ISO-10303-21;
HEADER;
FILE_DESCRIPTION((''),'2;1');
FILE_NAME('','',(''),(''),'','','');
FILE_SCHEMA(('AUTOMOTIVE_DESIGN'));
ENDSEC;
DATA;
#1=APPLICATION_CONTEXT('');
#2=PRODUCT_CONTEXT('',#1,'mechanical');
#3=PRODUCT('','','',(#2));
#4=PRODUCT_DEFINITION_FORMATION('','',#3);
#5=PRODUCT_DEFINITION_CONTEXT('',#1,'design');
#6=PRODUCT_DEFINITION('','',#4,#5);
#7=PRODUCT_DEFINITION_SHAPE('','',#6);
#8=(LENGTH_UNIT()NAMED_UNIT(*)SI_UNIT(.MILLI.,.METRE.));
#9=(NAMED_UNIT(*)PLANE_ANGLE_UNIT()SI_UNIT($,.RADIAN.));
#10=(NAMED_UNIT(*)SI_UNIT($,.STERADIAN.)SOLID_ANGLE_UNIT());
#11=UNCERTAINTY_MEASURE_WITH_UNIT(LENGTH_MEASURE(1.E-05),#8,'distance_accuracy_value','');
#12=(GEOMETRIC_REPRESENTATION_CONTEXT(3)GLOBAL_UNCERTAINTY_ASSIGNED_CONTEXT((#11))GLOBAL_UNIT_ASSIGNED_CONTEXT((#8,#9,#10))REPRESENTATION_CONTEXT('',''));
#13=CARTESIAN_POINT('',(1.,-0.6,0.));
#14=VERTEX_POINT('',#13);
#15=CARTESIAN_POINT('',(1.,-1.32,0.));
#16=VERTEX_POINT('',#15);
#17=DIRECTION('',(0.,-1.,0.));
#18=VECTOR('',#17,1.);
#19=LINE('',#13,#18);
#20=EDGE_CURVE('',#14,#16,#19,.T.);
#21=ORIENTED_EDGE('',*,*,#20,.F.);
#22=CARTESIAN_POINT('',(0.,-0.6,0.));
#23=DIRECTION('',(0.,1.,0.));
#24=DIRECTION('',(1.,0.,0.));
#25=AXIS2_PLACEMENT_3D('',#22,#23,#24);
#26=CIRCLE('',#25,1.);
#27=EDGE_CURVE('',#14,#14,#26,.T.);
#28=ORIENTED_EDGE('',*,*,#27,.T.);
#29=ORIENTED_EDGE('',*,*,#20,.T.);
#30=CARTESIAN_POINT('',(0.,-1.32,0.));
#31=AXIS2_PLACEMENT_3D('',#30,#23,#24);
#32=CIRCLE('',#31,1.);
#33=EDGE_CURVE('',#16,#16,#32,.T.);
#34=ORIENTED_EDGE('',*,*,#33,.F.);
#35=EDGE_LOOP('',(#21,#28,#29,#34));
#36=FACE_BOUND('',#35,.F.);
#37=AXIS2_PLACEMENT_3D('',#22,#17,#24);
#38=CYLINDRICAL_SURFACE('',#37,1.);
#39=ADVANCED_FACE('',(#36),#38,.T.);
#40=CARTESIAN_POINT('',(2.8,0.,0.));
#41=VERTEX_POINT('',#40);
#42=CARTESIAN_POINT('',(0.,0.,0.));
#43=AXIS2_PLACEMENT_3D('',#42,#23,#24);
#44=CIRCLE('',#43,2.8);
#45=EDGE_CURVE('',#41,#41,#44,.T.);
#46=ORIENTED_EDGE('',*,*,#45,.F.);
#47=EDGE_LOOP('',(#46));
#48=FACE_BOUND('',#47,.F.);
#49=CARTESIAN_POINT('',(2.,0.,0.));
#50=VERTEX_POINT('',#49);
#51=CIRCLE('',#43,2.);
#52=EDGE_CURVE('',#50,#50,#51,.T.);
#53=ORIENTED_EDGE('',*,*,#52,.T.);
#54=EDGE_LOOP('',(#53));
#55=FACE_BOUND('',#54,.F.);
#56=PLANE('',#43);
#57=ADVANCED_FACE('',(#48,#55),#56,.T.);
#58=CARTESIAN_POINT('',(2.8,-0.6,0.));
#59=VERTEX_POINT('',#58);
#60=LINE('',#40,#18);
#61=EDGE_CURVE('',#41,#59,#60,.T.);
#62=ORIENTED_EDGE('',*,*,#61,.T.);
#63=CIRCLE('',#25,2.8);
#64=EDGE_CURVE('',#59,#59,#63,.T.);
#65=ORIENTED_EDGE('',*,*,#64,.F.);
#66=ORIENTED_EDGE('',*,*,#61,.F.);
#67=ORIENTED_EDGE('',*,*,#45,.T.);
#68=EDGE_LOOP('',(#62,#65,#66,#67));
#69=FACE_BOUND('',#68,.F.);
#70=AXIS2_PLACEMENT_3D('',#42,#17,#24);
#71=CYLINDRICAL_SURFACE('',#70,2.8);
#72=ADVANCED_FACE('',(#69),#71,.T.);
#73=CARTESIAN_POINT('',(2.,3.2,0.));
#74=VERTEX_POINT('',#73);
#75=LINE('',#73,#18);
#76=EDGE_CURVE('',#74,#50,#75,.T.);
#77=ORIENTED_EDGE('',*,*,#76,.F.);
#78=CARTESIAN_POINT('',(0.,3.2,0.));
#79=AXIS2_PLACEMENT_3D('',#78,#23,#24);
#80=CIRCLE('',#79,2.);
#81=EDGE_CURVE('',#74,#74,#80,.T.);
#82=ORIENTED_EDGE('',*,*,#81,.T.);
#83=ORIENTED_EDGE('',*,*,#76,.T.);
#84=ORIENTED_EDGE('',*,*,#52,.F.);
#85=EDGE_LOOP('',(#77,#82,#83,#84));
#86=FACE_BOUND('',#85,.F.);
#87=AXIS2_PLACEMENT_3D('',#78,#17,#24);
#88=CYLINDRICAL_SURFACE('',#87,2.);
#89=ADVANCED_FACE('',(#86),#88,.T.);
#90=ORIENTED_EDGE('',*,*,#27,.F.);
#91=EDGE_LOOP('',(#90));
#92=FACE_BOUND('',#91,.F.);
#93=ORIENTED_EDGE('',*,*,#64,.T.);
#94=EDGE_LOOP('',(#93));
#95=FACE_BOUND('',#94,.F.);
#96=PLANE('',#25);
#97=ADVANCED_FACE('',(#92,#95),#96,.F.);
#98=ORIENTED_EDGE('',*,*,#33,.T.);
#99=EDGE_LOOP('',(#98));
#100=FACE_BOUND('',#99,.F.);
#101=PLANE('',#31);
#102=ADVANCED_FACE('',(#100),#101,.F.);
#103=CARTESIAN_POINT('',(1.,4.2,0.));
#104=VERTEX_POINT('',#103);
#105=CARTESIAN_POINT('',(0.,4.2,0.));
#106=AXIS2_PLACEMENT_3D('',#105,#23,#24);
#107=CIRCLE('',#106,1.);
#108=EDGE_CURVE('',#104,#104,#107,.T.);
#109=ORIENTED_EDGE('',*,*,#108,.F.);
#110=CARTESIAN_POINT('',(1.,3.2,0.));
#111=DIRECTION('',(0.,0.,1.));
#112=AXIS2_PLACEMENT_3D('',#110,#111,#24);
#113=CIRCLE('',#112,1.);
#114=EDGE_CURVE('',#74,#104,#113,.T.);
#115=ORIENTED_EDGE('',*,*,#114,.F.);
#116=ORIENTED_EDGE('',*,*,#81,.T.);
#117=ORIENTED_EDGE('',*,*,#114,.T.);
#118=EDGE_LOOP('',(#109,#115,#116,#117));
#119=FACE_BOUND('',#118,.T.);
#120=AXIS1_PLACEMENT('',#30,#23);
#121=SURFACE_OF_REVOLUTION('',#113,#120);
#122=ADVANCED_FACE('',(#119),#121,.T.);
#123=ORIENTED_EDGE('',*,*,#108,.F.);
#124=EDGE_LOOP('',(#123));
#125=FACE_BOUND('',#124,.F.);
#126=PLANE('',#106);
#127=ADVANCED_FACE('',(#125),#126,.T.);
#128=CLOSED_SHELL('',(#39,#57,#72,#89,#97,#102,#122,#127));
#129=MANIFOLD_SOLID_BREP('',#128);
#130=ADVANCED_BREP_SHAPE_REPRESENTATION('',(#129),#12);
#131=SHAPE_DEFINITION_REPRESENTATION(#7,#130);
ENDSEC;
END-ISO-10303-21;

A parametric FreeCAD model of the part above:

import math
import FreeCAD as App
import Part
import Sketcher

V = App.Vector

doc = App.newDocument("Part")
body = doc.addObject("PartDesign::Body", "Body")

# Sketch on XY plane
sketch1 = body.newObject("Sketcher::SketchObject", "Sketch")
sketch1.AttachmentSupport = (doc.getObject("XY_Plane"), [""])
sketch1.MapMode = "FlatFace"
sketch1.addGeometry([
    Part.LineSegment(V(2.8, 0, 0), V(2, 0, 0)),  # 0
    Part.LineSegment(V(2, 0, 0), V(2, 3.2, 0)),  # 1
    Part.ArcOfCircle(Part.Circle(V(1, 3.2, 0), V(0, 0, 1), 1), math.radians(0), math.radians(90)),  # 2
    Part.LineSegment(V(1, 4.2, 0), V(0, 4.2, 0)),  # 3
    Part.LineSegment(V(0, 4.2, 0), V(0, -1.3, 0)),  # 4
    Part.LineSegment(V(0, -1.3, 0), V(1, -1.3, 0)),  # 5
    Part.LineSegment(V(1, -1.3, 0), V(1, -0.6, 0)),  # 6
    Part.LineSegment(V(1, -0.6, 0), V(2.8, -0.6, 0)),  # 7
    Part.LineSegment(V(2.8, -0.6, 0), V(2.8, 0, 0)),  # 8
], False)
sketch1.addConstraint([
    Sketcher.Constraint("Coincident", 0, 2, 1, 1),
    Sketcher.Constraint("Tangent", 1, 2, 2, 1),
    Sketcher.Constraint("Tangent", 2, 2, 3, 1),
    Sketcher.Constraint("Coincident", 3, 2, 4, 1),
    Sketcher.Constraint("Coincident", 4, 2, 5, 1),
    Sketcher.Constraint("Coincident", 5, 2, 6, 1),
    Sketcher.Constraint("Coincident", 6, 2, 7, 1),
    Sketcher.Constraint("Coincident", 7, 2, 8, 1),
    Sketcher.Constraint("Coincident", 8, 2, 0, 1),
    Sketcher.Constraint("Horizontal", 0),
    Sketcher.Constraint("Vertical", 1),
    Sketcher.Constraint("Horizontal", 3),
    Sketcher.Constraint("Vertical", 4),
    Sketcher.Constraint("Horizontal", 5),
    Sketcher.Constraint("Vertical", 6),
    Sketcher.Constraint("Horizontal", 7),
    Sketcher.Constraint("Vertical", 8),
    Sketcher.Constraint("PointOnObject", 0, 2, -1),
    Sketcher.Constraint("PointOnObject", 3, 2, -2),
    Sketcher.Constraint("Vertical", 2, 2, 5, 2),
    Sketcher.Constraint("Radius", 2, 1.0),
    Sketcher.Constraint("DistanceX", 3, 2, 3, 1, 1.0),
    Sketcher.Constraint("DistanceY", 8, 1, 8, 2, 0.6),
    Sketcher.Constraint("DistanceY", 6, 1, 6, 2, 0.72),
    Sketcher.Constraint("DistanceY", -1, 1, 2, 2, 4.2),
    Sketcher.Constraint("DistanceX", 0, 2, 0, 1, 0.8),
])
revolution = body.newObject("PartDesign::Revolution", "Revolution")
revolution.Profile = sketch1
revolution.ReferenceAxis = (sketch1, ["V_Axis"])
revolution.Angle = 360

doc.recompute()
